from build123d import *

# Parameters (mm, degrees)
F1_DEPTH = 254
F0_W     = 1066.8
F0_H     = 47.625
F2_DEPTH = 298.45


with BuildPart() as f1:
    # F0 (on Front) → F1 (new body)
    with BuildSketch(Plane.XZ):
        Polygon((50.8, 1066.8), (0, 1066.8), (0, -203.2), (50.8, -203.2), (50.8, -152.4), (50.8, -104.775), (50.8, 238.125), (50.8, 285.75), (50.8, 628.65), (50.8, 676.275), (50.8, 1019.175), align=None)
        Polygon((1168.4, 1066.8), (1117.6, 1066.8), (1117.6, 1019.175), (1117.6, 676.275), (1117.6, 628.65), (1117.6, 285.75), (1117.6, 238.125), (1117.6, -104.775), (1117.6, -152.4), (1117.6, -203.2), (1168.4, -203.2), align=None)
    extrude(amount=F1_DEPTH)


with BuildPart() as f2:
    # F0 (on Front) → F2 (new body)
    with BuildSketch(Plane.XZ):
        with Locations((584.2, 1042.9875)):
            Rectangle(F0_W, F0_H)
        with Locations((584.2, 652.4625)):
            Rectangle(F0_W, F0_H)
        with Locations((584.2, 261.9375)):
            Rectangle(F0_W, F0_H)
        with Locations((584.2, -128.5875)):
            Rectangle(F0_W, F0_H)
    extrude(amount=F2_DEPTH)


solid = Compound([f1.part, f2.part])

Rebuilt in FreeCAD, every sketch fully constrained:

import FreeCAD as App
import Part
import Sketcher
from FreeCAD import Vector
Q = App.Units.Quantity


def add_polygon(sketch, points):
    """Adds a closed chain of lines whose ends are joined by coincident constraints."""
    first, n = sketch.GeometryCount, len(points)
    for a, b in zip(points, points[1:] + points[:1]):
        sketch.addGeometry(Part.LineSegment(App.Vector(*a, 0), App.Vector(*b, 0)), False)
    for i in range(n):
        sketch.addConstraint(Sketcher.Constraint("Coincident", first + i, 2, first + (i + 1) % n, 1))

doc = App.newDocument("Part")
params = doc.addObject("Spreadsheet::Sheet", "Params")
for row, (alias, value) in enumerate([
    ("sketch1_width", "2 in"),
    ("sketch1_height", "50 in"),
    ("pad1_length", "10 in"),
    ("sketch2_width", "42 in"),
    ("pad2_length", "11.75 in"),
], start=1):
    params.set(f"A{row}", alias)
    params.set(f"B{row}", "=" + value)
    params.setAlias(f"B{row}", alias)

body = doc.addObject("PartDesign::Body", "Body")
body.AllowCompound = True

# Sketch on XZ plane
sketch1 = body.newObject("Sketcher::SketchObject", "Sketch")
sketch1.AttachmentSupport = (doc.getObject("XZ_Plane"), [""])
sketch1.MapMode = "FlatFace"
add_polygon(sketch1, [(51, 1067), (0, 1067), (0, -203), (51, -203)])  # lines 0-3
add_polygon(sketch1, [(1168, 1067), (1118, 1067), (1118, -203), (1168, -203)])  # lines 4-7
sketch1.addConstraint([
    Sketcher.Constraint("Horizontal", 0),
    Sketcher.Constraint("Vertical", 1),
    Sketcher.Constraint("Horizontal", 2),
    Sketcher.Constraint("Vertical", 3),
    Sketcher.Constraint("Horizontal", 4),
    Sketcher.Constraint("Vertical", 5),
    Sketcher.Constraint("Horizontal", 6),
    Sketcher.Constraint("Vertical", 7),
    Sketcher.Constraint("PointOnObject", 0, 2, -2),
    Sketcher.Constraint("Horizontal", 3, 2, 4, 2),
    Sketcher.Constraint("Horizontal", 2, 2, 5, 2),
    Sketcher.Constraint("Equal", 2, 4),
    Sketcher.Constraint("DistanceX", 0, 2, 0, 1, Q("2 in")),
    Sketcher.Constraint("DistanceY", 1, 2, 1, 1, Q("50 in")),
    Sketcher.Constraint("DistanceY", -1, 1, 0, 2, Q("42 in")),
    Sketcher.Constraint("DistanceX", -1, 1, 4, 2, Q("44 in")),
])
sketch1.setExpression("Constraints[20]", "Params.sketch1_width")
sketch1.setExpression("Constraints[21]", "Params.sketch1_height")
pad1 = body.newObject("PartDesign::Pad", "Pad")
pad1.Profile = sketch1
pad1.setExpression("Length", "Params.pad1_length")
body2 = doc.addObject("PartDesign::Body", "Body001")
body2.AllowCompound = True

# Sketch on XZ plane
sketch2 = body2.newObject("Sketcher::SketchObject", "Sketch001")
sketch2.AttachmentSupport = (doc.getObject("XZ_Plane001"), [""])
sketch2.MapMode = "FlatFace"
add_polygon(sketch2, [(51, 1067), (51, 1019), (1118, 1019), (1118, 1067)])  # lines 0-3
add_polygon(sketch2, [(51, 676), (51, 629), (1118, 629), (1118, 676)])  # lines 4-7
add_polygon(sketch2, [(51, 286), (51, 238), (1118, 238), (1118, 286)])  # lines 8-11
add_polygon(sketch2, [(51, -105), (51, -152), (1118, -152), (1118, -105)])  # lines 12-15
sketch2.addConstraint([
    Sketcher.Constraint("Vertical", 0),
    Sketcher.Constraint("Horizontal", 1),
    Sketcher.Constraint("Vertical", 2),
    Sketcher.Constraint("Horizontal", 3),
    Sketcher.Constraint("Vertical", 4),
    Sketcher.Constraint("Horizontal", 5),
    Sketcher.Constraint("Vertical", 6),
    Sketcher.Constraint("Horizontal", 7),
    Sketcher.Constraint("Vertical", 8),
    Sketcher.Constraint("Horizontal", 9),
    Sketcher.Constraint("Vertical", 10),
    Sketcher.Constraint("Horizontal", 11),
    Sketcher.Constraint("Vertical", 12),
    Sketcher.Constraint("Horizontal", 13),
    Sketcher.Constraint("Vertical", 14),
    Sketcher.Constraint("Horizontal", 15),
    Sketcher.Constraint("Vertical", 3, 2, 4, 2),
    Sketcher.Constraint("Vertical", 2, 2, 5, 2),
    Sketcher.Constraint("Vertical", 7, 2, 8, 2),
    Sketcher.Constraint("Vertical", 6, 2, 9, 2),
    Sketcher.Constraint("Vertical", 11, 2, 12, 2),
    Sketcher.Constraint("Vertical", 10, 2, 13, 2),
    Sketcher.Constraint("Equal", 2, 4),
    Sketcher.Constraint("Equal", 6, 8),
    Sketcher.Constraint("Equal", 10, 12),
    Sketcher.Constraint("DistanceX", 1, 1, 1, 2, Q("42 in")),
    Sketcher.Constraint("DistanceX", -1, 1, 0, 2, Q("2 in")),
    Sketcher.Constraint("DistanceY", -1, 1, 2, 2, Q("42 in")),
    Sketcher.Constraint("DistanceY", 12, 2, -1, 1, Q("6 in")),
    Sketcher.Constraint("DistanceY", 6, 2, 1, 2, Q("13.5 in")),
    Sketcher.Constraint("DistanceY", 10, 2, 5, 2, Q("13.5 in")),
    Sketcher.Constraint("DistanceY", 14, 2, 9, 2, Q("13.5 in")),
])
sketch2.setExpression("Constraints[41]", "Params.sketch2_width")
pad2 = body2.newObject("PartDesign::Pad", "Pad001")
pad2.Profile = sketch2
pad2.setExpression("Length", "Params.pad2_length")

doc.recompute()
